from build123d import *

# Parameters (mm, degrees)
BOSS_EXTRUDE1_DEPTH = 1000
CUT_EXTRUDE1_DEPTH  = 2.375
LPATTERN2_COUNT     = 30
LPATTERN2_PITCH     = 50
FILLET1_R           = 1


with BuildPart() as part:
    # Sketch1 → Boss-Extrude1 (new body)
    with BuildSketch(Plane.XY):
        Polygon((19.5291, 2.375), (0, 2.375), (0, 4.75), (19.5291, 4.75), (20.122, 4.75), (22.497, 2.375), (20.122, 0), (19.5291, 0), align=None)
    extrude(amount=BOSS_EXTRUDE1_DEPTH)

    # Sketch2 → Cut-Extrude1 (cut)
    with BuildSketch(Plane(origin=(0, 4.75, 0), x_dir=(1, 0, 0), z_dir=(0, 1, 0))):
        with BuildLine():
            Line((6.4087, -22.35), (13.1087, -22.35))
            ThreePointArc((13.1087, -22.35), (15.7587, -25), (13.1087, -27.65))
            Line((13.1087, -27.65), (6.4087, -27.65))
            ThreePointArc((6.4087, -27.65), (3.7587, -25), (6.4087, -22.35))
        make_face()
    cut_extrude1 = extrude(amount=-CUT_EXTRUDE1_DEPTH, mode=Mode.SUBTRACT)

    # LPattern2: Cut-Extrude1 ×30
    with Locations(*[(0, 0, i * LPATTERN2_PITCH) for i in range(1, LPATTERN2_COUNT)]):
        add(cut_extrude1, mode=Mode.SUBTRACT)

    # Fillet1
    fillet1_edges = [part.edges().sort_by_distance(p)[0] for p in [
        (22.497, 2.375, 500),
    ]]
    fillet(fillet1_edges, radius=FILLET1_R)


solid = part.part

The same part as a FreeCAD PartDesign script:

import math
import FreeCAD as App
import Part
import Sketcher


def edges_at(feature, points):
    """Names of the edges that pass closest to the given points."""
    edges = feature.Shape.Edges
    near = lambda p: min(range(len(edges)), key=lambda i: edges[i].distToShape(Part.Vertex(*p))[0])
    return sorted({f"Edge{near(p) + 1}" for p in points})

doc = App.newDocument("Part")
params = doc.addObject("Spreadsheet::Sheet", "Params")
for row, (alias, value) in enumerate([
    ("pad1_length", "1000 mm"),
    ("sketch2_radius", "2.65 mm"),
    ("sketch2_width", "6.7 mm"),
    ("pocket1_length", "2.375 mm"),
    ("linearpattern_pitch", "50 mm"),
    ("fillet_radius", "1 mm"),
], start=1):
    params.set(f"A{row}", alias)
    params.set(f"B{row}", "=" + value)
    params.setAlias(f"B{row}", alias)

body = doc.addObject("PartDesign::Body", "Body")

# Sketch on XY plane
sketch1 = body.newObject("Sketcher::SketchObject", "Sketch")
sketch1.AttachmentSupport = (doc.getObject("XY_Plane"), [""])
sketch1.MapMode = "FlatFace"
sketch1.addGeometry(Part.LineSegment(App.Vector(0, 2.4, 0), App.Vector(19.5, 2.4, 0)), False)
sketch1.addGeometry(Part.LineSegment(App.Vector(19.5, 2.4, 0), App.Vector(19.5, 0, 0)), False)
sketch1.addGeometry(Part.LineSegment(App.Vector(19.5, 0, 0), App.Vector(20.1, 0, 0)), False)
sketch1.addGeometry(Part.LineSegment(App.Vector(20.1, 0, 0), App.Vector(22.5, 2.4, 0)), False)
sketch1.addGeometry(Part.LineSegment(App.Vector(22.5, 2.4, 0), App.Vector(20.1, 4.8, 0)), False)
sketch1.addGeometry(Part.LineSegment(App.Vector(20.1, 4.8, 0), App.Vector(0, 4.8, 0)), False)
sketch1.addGeometry(Part.LineSegment(App.Vector(0, 4.8, 0), App.Vector(0, 2.4, 0)), False)
sketch1.addConstraint(Sketcher.Constraint("Coincident", 0, 2, 1, 1))
sketch1.addConstraint(Sketcher.Constraint("Coincident", 1, 2, 2, 1))
sketch1.addConstraint(Sketcher.Constraint("Coincident", 2, 2, 3, 1))
sketch1.addConstraint(Sketcher.Constraint("Coincident", 3, 2, 4, 1))
sketch1.addConstraint(Sketcher.Constraint("Coincident", 4, 2, 5, 1))
sketch1.addConstraint(Sketcher.Constraint("Coincident", 5, 2, 6, 1))
sketch1.addConstraint(Sketcher.Constraint("Coincident", 6, 2, 0, 1))
sketch1.addConstraint(Sketcher.Constraint("Horizontal", 0))
sketch1.addConstraint(Sketcher.Constraint("Vertical", 1))
sketch1.addConstraint(Sketcher.Constraint("Horizontal", 2))
sketch1.addConstraint(Sketcher.Constraint("Horizontal", 5))
sketch1.addConstraint(Sketcher.Constraint("Vertical", 6))
sketch1.addConstraint(Sketcher.Constraint("PointOnObject", 1, 2, -1))
sketch1.addConstraint(Sketcher.Constraint("PointOnObject", 5, 2, -2))
sketch1.addConstraint(Sketcher.Constraint("Perpendicular", 3, 4))
sketch1.addConstraint(Sketcher.Constraint("Horizontal", 0, 2, 3, 2))
sketch1.addConstraint(Sketcher.Constraint("Vertical", 2, 2, 4, 2))
sketch1.addConstraint(Sketcher.Constraint("Equal", 1, 6))
sketch1.addConstraint(Sketcher.Constraint("DistanceX", 5, 2, 5, 1, 20.122))
sketch1.addConstraint(Sketcher.Constraint("DistanceY", 1, 2, 1, 1, 2.375))
sketch1.addConstraint(Sketcher.Constraint("DistanceX", 0, 1, 0, 2, 19.5291))
pad1 = body.newObject("PartDesign::Pad", "Pad")
pad1.Profile = sketch1
pad1.setExpression("Length", "Params.pad1_length")

# Sketch on XZ plane
sketch2 = body.newObject("Sketcher::SketchObject", "Sketch001")
sketch2.AttachmentSupport = (doc.getObject("XZ_Plane"), [""])
sketch2.MapMode = "FlatFace"
sketch2.AttachmentOffset = App.Placement(App.Vector(0, 0, -4.75), App.Rotation())
sketch2.addGeometry(Part.LineSegment(App.Vector(13.1, 22.4, 0), App.Vector(6.4, 22.4, 0)), False)
sketch2.addGeometry(Part.ArcOfCircle(Part.Circle(App.Vector(6.4, 25, 0), App.Vector(0, 0, 1), 2.6), math.radians(90), math.radians(270)), False)
sketch2.addGeometry(Part.LineSegment(App.Vector(6.4, 27.6, 0), App.Vector(13.1, 27.6, 0)), False)
sketch2.addGeometry(Part.ArcOfCircle(Part.Circle(App.Vector(13.1, 25, 0), App.Vector(0, 0, 1), 2.6), math.radians(-90), math.radians(90)), False)
sketch2.addConstraint(Sketcher.Constraint("Tangent", 0, 2, 1, 2))
sketch2.addConstraint(Sketcher.Constraint("Tangent", 1, 1, 2, 1))
sketch2.addConstraint(Sketcher.Constraint("Tangent", 2, 2, 3, 2))
sketch2.addConstraint(Sketcher.Constraint("Tangent", 3, 1, 0, 1))
sketch2.addConstraint(Sketcher.Constraint("Horizontal", 0))
sketch2.addConstraint(Sketcher.Constraint("Horizontal", 2))
sketch2.addConstraint(Sketcher.Constraint("Radius", 1, 2.65))
sketch2.addConstraint(Sketcher.Constraint("DistanceX", 0, 2, 0, 1, 6.7))
sketch2.addConstraint(Sketcher.Constraint("DistanceY", -1, 1, 1, 3, 25.0))
sketch2.addConstraint(Sketcher.Constraint("DistanceX", -1, 1, 1, 3, 6.4087))
sketch2.setExpression("Constraints[6]", "Params.sketch2_radius")
sketch2.setExpression("Constraints[7]", "Params.sketch2_width")
pocket1 = body.newObject("PartDesign::Pocket", "Pocket")
pocket1.Profile = sketch2
pocket1.setExpression("Length", "Params.pocket1_length")
pocket1.Reversed = True
doc.recompute()

linearpattern = body.newObject("PartDesign::LinearPattern", "LinearPattern")
linearpattern.Originals = [pocket1]
linearpattern.Direction = (doc.getObject("Z_Axis"), [""])
linearpattern.Mode = "offset"
linearpattern.setExpression("Offset", "Params.linearpattern_pitch")
linearpattern.Occurrences = 30
body.Tip = linearpattern
doc.recompute()

fillet = body.newObject("PartDesign::Fillet", "Fillet")
fillet.Base = (linearpattern, edges_at(linearpattern, [(22.497, 2.375, 500)]))
fillet.setExpression("Radius", "Params.fillet_radius")

doc.recompute()
